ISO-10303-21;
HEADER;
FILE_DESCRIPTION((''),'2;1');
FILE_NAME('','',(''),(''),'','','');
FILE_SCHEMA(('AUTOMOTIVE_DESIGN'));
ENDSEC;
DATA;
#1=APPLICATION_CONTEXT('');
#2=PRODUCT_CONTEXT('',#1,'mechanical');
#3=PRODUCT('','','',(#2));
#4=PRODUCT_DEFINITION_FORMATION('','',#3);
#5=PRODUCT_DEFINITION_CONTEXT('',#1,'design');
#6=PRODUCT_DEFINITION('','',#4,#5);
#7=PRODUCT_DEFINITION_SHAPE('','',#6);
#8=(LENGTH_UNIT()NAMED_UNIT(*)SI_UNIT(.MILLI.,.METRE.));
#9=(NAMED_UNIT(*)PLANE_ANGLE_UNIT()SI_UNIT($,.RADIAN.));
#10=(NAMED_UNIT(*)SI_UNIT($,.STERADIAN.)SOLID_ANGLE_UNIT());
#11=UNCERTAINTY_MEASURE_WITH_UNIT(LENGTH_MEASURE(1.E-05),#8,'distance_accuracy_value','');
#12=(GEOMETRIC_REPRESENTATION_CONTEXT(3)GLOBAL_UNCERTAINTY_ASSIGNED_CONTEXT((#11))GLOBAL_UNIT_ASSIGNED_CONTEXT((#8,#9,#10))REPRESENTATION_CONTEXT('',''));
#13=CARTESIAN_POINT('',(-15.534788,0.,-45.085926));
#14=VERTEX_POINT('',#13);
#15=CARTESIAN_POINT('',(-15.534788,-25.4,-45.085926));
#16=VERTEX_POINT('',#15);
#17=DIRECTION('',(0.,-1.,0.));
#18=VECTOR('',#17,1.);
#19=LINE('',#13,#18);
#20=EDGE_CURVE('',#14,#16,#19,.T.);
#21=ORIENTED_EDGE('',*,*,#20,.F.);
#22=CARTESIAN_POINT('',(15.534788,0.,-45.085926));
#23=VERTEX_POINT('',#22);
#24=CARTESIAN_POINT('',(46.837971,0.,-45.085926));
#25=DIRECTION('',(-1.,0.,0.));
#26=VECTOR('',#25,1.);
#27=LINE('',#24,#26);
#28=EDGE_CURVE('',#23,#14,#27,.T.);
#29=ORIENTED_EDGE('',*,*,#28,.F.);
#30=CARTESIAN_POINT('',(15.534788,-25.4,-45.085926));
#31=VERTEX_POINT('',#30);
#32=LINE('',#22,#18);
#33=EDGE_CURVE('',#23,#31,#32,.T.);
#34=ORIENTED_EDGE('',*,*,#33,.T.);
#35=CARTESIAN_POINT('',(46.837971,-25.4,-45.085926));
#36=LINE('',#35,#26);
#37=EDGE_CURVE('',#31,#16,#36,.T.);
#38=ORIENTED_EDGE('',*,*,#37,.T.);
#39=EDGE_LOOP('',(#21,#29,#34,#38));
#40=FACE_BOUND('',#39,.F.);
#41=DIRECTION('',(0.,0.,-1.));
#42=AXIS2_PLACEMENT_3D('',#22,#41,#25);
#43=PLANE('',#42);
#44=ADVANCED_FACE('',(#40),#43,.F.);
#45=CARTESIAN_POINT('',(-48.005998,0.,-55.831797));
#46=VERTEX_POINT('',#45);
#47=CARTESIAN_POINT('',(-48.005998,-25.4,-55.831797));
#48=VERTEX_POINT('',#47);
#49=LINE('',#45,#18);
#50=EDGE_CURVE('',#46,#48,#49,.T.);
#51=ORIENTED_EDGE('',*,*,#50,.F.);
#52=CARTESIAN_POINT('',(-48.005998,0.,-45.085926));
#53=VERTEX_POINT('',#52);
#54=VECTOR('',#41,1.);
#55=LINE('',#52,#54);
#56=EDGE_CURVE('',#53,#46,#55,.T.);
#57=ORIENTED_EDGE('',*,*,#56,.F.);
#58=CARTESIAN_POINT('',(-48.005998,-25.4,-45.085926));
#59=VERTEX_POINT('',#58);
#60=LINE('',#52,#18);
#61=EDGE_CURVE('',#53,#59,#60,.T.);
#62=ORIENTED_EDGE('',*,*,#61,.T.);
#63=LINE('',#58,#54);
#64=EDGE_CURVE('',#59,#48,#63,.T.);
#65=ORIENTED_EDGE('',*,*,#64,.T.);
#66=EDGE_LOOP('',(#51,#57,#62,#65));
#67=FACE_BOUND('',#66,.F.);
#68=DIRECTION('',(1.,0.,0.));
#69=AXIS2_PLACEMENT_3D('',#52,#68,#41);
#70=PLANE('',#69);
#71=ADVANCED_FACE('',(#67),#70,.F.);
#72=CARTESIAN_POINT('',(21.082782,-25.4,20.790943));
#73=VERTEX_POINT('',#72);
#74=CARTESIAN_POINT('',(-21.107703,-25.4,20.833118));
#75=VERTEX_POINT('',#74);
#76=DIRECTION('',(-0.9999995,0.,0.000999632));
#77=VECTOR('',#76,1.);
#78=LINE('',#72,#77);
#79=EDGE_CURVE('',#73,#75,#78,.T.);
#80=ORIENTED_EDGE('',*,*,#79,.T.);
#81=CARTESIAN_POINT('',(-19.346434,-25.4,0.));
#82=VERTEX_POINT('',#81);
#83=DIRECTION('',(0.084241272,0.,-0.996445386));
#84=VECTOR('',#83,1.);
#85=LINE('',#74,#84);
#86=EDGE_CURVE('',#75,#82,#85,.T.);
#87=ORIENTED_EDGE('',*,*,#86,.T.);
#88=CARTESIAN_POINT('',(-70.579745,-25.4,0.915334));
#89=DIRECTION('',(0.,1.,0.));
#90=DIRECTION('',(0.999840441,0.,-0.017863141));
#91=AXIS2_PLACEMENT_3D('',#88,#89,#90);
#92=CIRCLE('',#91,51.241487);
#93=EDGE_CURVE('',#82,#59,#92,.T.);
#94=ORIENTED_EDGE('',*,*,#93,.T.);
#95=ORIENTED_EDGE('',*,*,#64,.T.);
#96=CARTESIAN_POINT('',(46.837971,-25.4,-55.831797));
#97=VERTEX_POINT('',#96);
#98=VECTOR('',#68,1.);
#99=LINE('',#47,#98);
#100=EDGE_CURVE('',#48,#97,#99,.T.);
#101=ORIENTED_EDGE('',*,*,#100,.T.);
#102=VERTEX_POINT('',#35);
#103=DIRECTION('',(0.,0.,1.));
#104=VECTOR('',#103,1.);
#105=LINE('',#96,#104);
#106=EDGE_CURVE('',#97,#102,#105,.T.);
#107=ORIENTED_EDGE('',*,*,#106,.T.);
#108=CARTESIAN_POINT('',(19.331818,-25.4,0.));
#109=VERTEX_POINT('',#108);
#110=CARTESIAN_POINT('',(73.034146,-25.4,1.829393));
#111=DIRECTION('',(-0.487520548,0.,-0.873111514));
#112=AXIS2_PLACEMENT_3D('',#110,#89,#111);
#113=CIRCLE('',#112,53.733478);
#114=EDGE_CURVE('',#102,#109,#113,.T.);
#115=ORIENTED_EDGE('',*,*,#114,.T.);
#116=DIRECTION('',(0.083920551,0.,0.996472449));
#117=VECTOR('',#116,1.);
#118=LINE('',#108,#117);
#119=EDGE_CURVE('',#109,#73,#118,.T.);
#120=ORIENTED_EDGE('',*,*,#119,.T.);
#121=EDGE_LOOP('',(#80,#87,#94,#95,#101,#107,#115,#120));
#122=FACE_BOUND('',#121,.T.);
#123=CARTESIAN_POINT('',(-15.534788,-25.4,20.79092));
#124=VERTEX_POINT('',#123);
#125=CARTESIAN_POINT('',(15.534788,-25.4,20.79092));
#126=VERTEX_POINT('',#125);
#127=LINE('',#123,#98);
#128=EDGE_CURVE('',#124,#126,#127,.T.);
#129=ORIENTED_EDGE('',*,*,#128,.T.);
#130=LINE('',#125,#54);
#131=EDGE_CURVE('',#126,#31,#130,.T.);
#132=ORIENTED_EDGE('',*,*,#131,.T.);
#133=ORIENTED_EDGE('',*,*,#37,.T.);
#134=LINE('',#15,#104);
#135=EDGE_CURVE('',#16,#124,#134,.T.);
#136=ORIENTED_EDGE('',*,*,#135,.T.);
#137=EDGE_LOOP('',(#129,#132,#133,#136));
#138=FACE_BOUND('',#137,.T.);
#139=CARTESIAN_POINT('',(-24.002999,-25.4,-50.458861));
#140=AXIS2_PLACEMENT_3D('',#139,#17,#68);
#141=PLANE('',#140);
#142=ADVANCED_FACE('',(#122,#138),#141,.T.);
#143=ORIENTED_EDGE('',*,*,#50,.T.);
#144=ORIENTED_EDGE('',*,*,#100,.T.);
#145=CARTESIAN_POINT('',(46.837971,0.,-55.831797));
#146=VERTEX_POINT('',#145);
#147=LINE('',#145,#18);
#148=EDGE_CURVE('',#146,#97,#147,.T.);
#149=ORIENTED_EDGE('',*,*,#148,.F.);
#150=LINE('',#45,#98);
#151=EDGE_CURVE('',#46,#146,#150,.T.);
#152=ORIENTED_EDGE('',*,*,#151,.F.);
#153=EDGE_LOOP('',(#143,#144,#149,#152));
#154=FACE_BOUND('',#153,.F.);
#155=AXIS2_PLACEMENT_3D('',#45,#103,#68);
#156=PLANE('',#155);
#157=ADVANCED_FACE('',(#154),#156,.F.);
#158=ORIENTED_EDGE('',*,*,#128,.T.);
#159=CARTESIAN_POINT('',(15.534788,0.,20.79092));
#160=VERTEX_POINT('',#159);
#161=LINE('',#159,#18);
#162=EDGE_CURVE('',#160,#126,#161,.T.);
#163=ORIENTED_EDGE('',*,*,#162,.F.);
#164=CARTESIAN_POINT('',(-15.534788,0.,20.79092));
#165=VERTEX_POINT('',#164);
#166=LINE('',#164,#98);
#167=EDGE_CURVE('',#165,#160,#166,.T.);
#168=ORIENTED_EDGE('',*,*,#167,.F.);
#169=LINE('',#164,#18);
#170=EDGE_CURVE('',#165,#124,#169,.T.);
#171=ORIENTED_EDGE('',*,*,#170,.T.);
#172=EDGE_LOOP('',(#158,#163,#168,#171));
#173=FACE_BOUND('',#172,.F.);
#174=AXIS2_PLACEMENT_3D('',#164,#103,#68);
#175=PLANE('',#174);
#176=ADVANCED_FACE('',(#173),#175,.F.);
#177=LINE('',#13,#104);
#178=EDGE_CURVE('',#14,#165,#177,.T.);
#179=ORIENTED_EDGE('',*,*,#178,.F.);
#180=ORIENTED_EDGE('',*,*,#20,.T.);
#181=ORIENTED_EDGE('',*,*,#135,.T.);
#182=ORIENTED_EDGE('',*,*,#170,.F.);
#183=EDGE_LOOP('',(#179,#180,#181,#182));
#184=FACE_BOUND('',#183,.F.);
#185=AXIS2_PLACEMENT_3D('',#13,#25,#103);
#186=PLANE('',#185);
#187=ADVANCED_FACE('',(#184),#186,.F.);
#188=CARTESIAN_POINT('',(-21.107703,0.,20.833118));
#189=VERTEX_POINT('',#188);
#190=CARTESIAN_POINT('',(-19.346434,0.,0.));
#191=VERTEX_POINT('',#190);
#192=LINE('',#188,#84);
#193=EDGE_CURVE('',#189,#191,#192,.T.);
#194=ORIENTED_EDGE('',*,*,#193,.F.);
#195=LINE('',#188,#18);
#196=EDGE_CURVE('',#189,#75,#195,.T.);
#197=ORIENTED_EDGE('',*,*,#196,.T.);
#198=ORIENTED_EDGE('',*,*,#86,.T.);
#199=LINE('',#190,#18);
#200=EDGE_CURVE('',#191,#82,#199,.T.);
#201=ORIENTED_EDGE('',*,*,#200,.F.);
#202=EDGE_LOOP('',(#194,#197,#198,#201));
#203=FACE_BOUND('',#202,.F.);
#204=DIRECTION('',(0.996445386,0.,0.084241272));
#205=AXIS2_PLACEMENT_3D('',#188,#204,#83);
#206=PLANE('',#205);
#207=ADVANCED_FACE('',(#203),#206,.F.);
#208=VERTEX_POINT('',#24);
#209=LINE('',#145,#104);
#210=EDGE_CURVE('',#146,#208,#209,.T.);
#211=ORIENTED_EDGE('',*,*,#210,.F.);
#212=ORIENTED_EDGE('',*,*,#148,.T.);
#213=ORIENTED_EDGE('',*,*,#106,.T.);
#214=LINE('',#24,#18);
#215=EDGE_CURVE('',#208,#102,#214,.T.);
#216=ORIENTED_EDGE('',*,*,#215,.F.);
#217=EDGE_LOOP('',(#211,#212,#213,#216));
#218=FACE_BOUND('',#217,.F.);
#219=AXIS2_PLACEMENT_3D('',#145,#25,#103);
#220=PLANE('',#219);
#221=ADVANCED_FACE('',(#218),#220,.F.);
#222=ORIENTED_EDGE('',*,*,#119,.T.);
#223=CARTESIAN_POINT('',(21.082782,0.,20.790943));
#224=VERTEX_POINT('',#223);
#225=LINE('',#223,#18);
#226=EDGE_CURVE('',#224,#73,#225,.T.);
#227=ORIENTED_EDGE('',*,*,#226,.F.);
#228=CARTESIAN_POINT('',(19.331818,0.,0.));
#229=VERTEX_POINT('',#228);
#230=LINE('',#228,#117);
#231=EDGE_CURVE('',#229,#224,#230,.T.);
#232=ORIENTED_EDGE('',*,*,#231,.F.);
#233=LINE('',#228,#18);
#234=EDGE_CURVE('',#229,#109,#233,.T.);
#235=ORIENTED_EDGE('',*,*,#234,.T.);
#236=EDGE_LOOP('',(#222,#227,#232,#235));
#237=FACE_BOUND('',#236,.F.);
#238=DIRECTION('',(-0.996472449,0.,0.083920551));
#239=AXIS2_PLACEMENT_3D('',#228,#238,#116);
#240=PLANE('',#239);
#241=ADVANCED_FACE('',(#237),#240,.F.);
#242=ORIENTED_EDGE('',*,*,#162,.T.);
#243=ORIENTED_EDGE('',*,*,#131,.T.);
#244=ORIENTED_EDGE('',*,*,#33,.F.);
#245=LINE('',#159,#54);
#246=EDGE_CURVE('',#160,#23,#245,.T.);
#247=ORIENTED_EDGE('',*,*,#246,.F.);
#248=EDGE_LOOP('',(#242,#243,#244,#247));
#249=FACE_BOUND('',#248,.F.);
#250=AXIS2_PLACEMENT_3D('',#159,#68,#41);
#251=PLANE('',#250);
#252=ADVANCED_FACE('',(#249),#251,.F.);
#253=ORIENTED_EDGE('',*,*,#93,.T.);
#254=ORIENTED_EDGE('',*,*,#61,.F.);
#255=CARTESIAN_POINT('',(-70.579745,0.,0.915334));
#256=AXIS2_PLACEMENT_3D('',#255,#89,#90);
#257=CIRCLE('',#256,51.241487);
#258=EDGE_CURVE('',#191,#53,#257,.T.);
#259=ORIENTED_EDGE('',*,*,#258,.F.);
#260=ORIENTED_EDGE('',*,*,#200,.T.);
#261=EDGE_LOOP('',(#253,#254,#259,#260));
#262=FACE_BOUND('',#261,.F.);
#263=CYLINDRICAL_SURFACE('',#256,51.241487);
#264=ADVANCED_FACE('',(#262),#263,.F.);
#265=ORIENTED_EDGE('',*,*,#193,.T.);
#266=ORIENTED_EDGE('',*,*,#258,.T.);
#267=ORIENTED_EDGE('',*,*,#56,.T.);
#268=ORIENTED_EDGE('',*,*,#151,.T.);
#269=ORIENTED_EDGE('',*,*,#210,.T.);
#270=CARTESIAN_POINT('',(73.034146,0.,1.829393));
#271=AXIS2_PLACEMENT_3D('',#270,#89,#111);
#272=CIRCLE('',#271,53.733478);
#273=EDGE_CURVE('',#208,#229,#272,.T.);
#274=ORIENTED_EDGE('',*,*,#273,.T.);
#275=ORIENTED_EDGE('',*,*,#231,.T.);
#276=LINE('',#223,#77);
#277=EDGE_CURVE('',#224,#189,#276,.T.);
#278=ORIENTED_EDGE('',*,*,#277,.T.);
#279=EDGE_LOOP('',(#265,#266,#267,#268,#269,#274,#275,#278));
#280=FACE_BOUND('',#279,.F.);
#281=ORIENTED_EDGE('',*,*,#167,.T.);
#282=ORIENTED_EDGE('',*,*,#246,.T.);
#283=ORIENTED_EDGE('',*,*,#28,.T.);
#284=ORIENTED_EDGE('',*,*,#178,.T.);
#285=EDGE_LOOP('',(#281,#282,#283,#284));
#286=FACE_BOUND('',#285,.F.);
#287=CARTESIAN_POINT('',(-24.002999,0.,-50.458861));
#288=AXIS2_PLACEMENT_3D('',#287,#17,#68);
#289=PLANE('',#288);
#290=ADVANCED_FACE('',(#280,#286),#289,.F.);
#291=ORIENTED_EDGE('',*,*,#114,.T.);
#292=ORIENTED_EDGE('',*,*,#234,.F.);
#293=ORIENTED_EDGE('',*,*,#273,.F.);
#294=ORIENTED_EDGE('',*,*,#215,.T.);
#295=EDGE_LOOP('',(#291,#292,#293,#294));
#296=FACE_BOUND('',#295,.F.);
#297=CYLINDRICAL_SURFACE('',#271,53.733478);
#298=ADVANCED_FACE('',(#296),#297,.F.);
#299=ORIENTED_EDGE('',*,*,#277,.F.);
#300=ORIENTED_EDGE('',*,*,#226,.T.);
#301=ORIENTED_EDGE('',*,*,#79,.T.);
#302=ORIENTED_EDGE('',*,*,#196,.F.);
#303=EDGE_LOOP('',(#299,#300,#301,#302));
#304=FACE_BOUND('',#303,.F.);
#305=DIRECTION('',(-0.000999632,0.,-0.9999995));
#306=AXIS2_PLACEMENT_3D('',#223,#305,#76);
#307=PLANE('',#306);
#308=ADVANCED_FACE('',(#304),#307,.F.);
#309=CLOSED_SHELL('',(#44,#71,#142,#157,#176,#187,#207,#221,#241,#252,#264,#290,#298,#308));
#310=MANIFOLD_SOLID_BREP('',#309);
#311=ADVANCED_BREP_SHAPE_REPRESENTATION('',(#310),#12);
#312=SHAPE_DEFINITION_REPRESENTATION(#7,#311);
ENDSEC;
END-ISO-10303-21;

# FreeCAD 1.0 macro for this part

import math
import FreeCAD as App
import Part
import Sketcher
Q = App.Units.Quantity

doc = App.newDocument("Part")
params = doc.addObject("Spreadsheet::Sheet", "Params")
for row, (alias, value) in enumerate([
    ("pad1_length", "1 in"),
], start=1):
    params.set(f"A{row}", alias)
    params.set(f"B{row}", "=" + value)
    params.setAlias(f"B{row}", alias)

body = doc.addObject("PartDesign::Body", "Body")

# Sketch on XZ plane
sketch1 = body.newObject("Sketcher::SketchObject", "Sketch")
sketch1.AttachmentSupport = (doc.getObject("XZ_Plane"), [""])
sketch1.MapMode = "FlatFace"
sketch1.addGeometry(Part.LineSegment(App.Vector(47, -56, 0), App.Vector(47, -45, 0)), False)
sketch1.addGeometry(Part.ArcOfCircle(Part.Circle(App.Vector(73, 2, 0), App.Vector(0, 0, 1), 54), math.radians(-178), math.radians(-119)), False)
sketch1.addGeometry(Part.LineSegment(App.Vector(19, 0, 0), App.Vector(21, 21, 0)), False)
sketch1.addGeometry(Part.LineSegment(App.Vector(21, 21, 0), App.Vector(-21, 21, 0)), False)
sketch1.addGeometry(Part.LineSegment(App.Vector(-21, 21, 0), App.Vector(-19, 0, 0)), False)
sketch1.addGeometry(Part.ArcOfCircle(Part.Circle(App.Vector(-71, 1, 0), App.Vector(0, 0, 1), 51), math.radians(-64), math.radians(-1)), False)
sketch1.addGeometry(Part.LineSegment(App.Vector(-48, -45, 0), App.Vector(-48, -56, 0)), False)
sketch1.addGeometry(Part.LineSegment(App.Vector(-48, -56, 0), App.Vector(47, -56, 0)), False)
sketch1.addGeometry(Part.LineSegment(App.Vector(16, 21, 0), App.Vector(16, -45, 0)), False)
sketch1.addGeometry(Part.LineSegment(App.Vector(16, -45, 0), App.Vector(-16, -45, 0)), False)
sketch1.addGeometry(Part.LineSegment(App.Vector(-16, -45, 0), App.Vector(-16, 21, 0)), False)
sketch1.addGeometry(Part.LineSegment(App.Vector(-16, 21, 0), App.Vector(16, 21, 0)), False)
sketch1.addConstraint(Sketcher.Constraint("Coincident", 0, 2, 1, 2))
sketch1.addConstraint(Sketcher.Constraint("Coincident", 1, 1, 2, 1))
sketch1.addConstraint(Sketcher.Constraint("Coincident", 2, 2, 3, 1))
sketch1.addConstraint(Sketcher.Constraint("Coincident", 3, 2, 4, 1))
sketch1.addConstraint(Sketcher.Constraint("Coincident", 4, 2, 5, 2))
sketch1.addConstraint(Sketcher.Constraint("Coincident", 5, 1, 6, 1))
sketch1.addConstraint(Sketcher.Constraint("Coincident", 6, 2, 7, 1))
sketch1.addConstraint(Sketcher.Constraint("Coincident", 7, 2, 0, 1))
sketch1.addConstraint(Sketcher.Constraint("Coincident", 8, 2, 9, 1))
sketch1.addConstraint(Sketcher.Constraint("Coincident", 9, 2, 10, 1))
sketch1.addConstraint(Sketcher.Constraint("Coincident", 10, 2, 11, 1))
sketch1.addConstraint(Sketcher.Constraint("Coincident", 11, 2, 8, 1))
sketch1.addConstraint(Sketcher.Constraint("Vertical", 0))
sketch1.addConstraint(Sketcher.Constraint("Vertical", 6))
sketch1.addConstraint(Sketcher.Constraint("Horizontal", 7))
sketch1.addConstraint(Sketcher.Constraint("Vertical", 8))
sketch1.addConstraint(Sketcher.Constraint("Horizontal", 9))
sketch1.addConstraint(Sketcher.Constraint("Vertical", 10))
sketch1.addConstraint(Sketcher.Constraint("Horizontal", 11))
sketch1.addConstraint(Sketcher.Constraint("PointOnObject", 1, 1, -1))
sketch1.addConstraint(Sketcher.Constraint("PointOnObject", 4, 2, -1))
sketch1.addConstraint(Sketcher.Constraint("Horizontal", 0, 2, 5, 1))
sketch1.addConstraint(Sketcher.Constraint("Horizontal", 5, 1, 8, 2))
sketch1.addConstraint(Sketcher.Constraint("DistanceX", 5, 1, -1, 1, Q("1.8899999 in")))
sketch1.addConstraint(Sketcher.Constraint("Radius", 1, Q("53.733478 mm")))
sketch1.addConstraint(Sketcher.Constraint("Radius", 5, Q("51.241487 mm")))
sketch1.addConstraint(Sketcher.Constraint("DistanceX", 7, 1, 7, 2, Q("94.843969 mm")))
sketch1.addConstraint(Sketcher.Constraint("DistanceY", 0, 1, 0, 2, Q("10.745871 mm")))
sketch1.addConstraint(Sketcher.Constraint("DistanceX", 9, 2, 9, 1, Q("31.069576 mm")))
sketch1.addConstraint(Sketcher.Constraint("DistanceY", 8, 2, 8, 1, Q("65.876846 mm")))
sketch1.addConstraint(Sketcher.Constraint("DistanceX", -1, 1, 1, 1, Q("19.331818 mm")))
sketch1.addConstraint(Sketcher.Constraint("DistanceX", -1, 1, 8, 2, Q("15.534788 mm")))
sketch1.addConstraint(Sketcher.Constraint("DistanceY", -1, 1, 10, 2, Q("20.79092 mm")))
sketch1.addConstraint(Sketcher.Constraint("DistanceX", 5, 3, 1, 3, Q("143.61389 mm")))
sketch1.addConstraint(Sketcher.Constraint("DistanceY", 1, 3, 2, 2, Q("18.96155 mm")))
sketch1.addConstraint(Sketcher.Constraint("DistanceX", 2, 2, 0, 2, Q("25.755189 mm")))
sketch1.addConstraint(Sketcher.Constraint("DistanceX", 3, 2, 1, 1, Q("40.439521 mm")))
sketch1.addConstraint(Sketcher.Constraint("Distance", 4, Q("20.907436 mm")))
pad1 = body.newObject("PartDesign::Pad", "Pad")
pad1.Profile = sketch1
pad1.setExpression("Length", "Params.pad1_length")

doc.recompute()
